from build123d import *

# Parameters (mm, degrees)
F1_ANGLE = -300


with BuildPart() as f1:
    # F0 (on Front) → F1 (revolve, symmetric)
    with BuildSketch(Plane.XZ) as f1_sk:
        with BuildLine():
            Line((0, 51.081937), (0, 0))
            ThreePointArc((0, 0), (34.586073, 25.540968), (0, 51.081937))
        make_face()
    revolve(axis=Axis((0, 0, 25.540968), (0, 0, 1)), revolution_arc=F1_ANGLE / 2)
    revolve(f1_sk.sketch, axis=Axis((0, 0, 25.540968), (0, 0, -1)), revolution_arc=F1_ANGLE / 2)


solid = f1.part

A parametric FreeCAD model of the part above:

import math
import FreeCAD as App
import Part
import Sketcher
Q = App.Units.Quantity

doc = App.newDocument("Part")
params = doc.addObject("Spreadsheet::Sheet", "Params")
for row, (alias, value) in enumerate([
    ("revolution_angle", "150 deg"),
    ("revolution2_angle", "150 deg"),
], start=1):
    params.set(f"A{row}", alias)
    params.set(f"B{row}", "=" + value)
    params.setAlias(f"B{row}", alias)

body = doc.addObject("PartDesign::Body", "Body")

# Sketch on XZ plane
sketch1 = body.newObject("Sketcher::SketchObject", "Sketch")
sketch1.AttachmentSupport = (doc.getObject("XZ_Plane"), [""])
sketch1.MapMode = "FlatFace"
sketch1.addGeometry(Part.LineSegment(App.Vector(0, 51, 0), App.Vector(0, 0, 0)), False)
sketch1.addGeometry(Part.ArcOfCircle(Part.Circle(App.Vector(8, 26, 0), App.Vector(0, 0, 1), 27), math.radians(-107), math.radians(107)), False)
sketch1.addConstraint(Sketcher.Constraint("Coincident", 0, 1, 1, 2))
sketch1.addConstraint(Sketcher.Constraint("Coincident", 1, 1, 0, 2))
sketch1.addConstraint(Sketcher.Constraint("Vertical", 0))
sketch1.addConstraint(Sketcher.Constraint("Coincident", 1, 1, -1, 1))
sketch1.addConstraint(Sketcher.Constraint("Radius", 1, Q("26.723727 mm")))
sketch1.addConstraint(Sketcher.Constraint("DistanceY", 0, 2, 0, 1, Q("51.081937 mm")))
revolution = body.newObject("PartDesign::Revolution", "Revolution")
revolution.Profile = sketch1
revolution.ReferenceAxis = (sketch1, ["V_Axis"])
revolution.setExpression("Angle", "Params.revolution_angle")
revolution.Reversed = True

# Sketch on XZ plane
sketch2 = body.newObject("Sketcher::SketchObject", "Sketch001")
sketch2.AttachmentSupport = (doc.getObject("XZ_Plane"), [""])
sketch2.MapMode = "FlatFace"
sketch2.addGeometry(Part.LineSegment(App.Vector(0, 51, 0), App.Vector(0, 0, 0)), False)
sketch2.addGeometry(Part.ArcOfCircle(Part.Circle(App.Vector(8, 26, 0), App.Vector(0, 0, 1), 27), math.radians(-107), math.radians(107)), False)
sketch2.addConstraint(Sketcher.Constraint("Coincident", 0, 1, 1, 2))
sketch2.addConstraint(Sketcher.Constraint("Coincident", 1, 1, 0, 2))
sketch2.addConstraint(Sketcher.Constraint("Vertical", 0))
sketch2.addConstraint(Sketcher.Constraint("Coincident", 1, 1, -1, 1))
sketch2.addConstraint(Sketcher.Constraint("Radius", 1, Q("26.723727 mm")))
sketch2.addConstraint(Sketcher.Constraint("DistanceY", 0, 2, 0, 1, Q("51.081937 mm")))
revolution2 = body.newObject("PartDesign::Revolution", "Revolution001")
revolution2.Profile = sketch2
revolution2.ReferenceAxis = (sketch2, ["V_Axis"])
revolution2.setExpression("Angle", "Params.revolution2_angle")

doc.recompute()
